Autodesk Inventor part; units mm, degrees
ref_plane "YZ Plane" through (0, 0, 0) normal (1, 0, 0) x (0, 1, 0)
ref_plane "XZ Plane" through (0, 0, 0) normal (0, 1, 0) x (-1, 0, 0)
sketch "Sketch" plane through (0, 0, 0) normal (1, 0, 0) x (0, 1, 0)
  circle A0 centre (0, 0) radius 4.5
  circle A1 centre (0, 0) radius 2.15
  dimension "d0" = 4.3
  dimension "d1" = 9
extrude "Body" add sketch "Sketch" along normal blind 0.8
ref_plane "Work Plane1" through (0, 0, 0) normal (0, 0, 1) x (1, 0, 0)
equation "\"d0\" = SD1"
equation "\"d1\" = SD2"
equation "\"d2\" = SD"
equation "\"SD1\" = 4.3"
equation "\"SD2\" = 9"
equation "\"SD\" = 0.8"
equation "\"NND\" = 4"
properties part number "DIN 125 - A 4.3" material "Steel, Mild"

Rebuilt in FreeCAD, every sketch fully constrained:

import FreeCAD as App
import Part
import Sketcher

V = App.Vector

doc = App.newDocument("Part")
params = doc.addObject("Spreadsheet::Sheet", "Params")
for row, (alias, value) in enumerate([
    ("sketch1_diameter", "9 mm"),
    ("sketch1_diameter2", "4.3 mm"),
    ("pad1_length", "0.8 mm"),
], start=1):
    params.set(f"A{row}", alias)
    params.set(f"B{row}", "=" + value)
    params.setAlias(f"B{row}", alias)

body = doc.addObject("PartDesign::Body", "Body")

# Sketch on YZ plane
sketch1 = body.newObject("Sketcher::SketchObject", "Sketch")
sketch1.AttachmentSupport = (doc.getObject("YZ_Plane"), [""])
sketch1.MapMode = "FlatFace"
sketch1.addGeometry(Part.Circle(V(0, 0, 0), V(0, 0, 1), 4.5), False)
sketch1.addGeometry(Part.Circle(V(0, 0, 0), V(0, 0, 1), 2.1), False)
sketch1.addConstraint(Sketcher.Constraint("Coincident", 0, 3, -1, 1))
sketch1.addConstraint(Sketcher.Constraint("Coincident", 1, 3, -1, 1))
sketch1.addConstraint(Sketcher.Constraint("Diameter", 0, 9.0))
sketch1.addConstraint(Sketcher.Constraint("Diameter", 1, 4.3))
sketch1.setExpression("Constraints[2]", "Params.sketch1_diameter")
sketch1.setExpression("Constraints[3]", "Params.sketch1_diameter2")
pad1 = body.newObject("PartDesign::Pad", "Pad")
pad1.Profile = sketch1
pad1.setExpression("Length", "Params.pad1_length")

doc.recompute()
